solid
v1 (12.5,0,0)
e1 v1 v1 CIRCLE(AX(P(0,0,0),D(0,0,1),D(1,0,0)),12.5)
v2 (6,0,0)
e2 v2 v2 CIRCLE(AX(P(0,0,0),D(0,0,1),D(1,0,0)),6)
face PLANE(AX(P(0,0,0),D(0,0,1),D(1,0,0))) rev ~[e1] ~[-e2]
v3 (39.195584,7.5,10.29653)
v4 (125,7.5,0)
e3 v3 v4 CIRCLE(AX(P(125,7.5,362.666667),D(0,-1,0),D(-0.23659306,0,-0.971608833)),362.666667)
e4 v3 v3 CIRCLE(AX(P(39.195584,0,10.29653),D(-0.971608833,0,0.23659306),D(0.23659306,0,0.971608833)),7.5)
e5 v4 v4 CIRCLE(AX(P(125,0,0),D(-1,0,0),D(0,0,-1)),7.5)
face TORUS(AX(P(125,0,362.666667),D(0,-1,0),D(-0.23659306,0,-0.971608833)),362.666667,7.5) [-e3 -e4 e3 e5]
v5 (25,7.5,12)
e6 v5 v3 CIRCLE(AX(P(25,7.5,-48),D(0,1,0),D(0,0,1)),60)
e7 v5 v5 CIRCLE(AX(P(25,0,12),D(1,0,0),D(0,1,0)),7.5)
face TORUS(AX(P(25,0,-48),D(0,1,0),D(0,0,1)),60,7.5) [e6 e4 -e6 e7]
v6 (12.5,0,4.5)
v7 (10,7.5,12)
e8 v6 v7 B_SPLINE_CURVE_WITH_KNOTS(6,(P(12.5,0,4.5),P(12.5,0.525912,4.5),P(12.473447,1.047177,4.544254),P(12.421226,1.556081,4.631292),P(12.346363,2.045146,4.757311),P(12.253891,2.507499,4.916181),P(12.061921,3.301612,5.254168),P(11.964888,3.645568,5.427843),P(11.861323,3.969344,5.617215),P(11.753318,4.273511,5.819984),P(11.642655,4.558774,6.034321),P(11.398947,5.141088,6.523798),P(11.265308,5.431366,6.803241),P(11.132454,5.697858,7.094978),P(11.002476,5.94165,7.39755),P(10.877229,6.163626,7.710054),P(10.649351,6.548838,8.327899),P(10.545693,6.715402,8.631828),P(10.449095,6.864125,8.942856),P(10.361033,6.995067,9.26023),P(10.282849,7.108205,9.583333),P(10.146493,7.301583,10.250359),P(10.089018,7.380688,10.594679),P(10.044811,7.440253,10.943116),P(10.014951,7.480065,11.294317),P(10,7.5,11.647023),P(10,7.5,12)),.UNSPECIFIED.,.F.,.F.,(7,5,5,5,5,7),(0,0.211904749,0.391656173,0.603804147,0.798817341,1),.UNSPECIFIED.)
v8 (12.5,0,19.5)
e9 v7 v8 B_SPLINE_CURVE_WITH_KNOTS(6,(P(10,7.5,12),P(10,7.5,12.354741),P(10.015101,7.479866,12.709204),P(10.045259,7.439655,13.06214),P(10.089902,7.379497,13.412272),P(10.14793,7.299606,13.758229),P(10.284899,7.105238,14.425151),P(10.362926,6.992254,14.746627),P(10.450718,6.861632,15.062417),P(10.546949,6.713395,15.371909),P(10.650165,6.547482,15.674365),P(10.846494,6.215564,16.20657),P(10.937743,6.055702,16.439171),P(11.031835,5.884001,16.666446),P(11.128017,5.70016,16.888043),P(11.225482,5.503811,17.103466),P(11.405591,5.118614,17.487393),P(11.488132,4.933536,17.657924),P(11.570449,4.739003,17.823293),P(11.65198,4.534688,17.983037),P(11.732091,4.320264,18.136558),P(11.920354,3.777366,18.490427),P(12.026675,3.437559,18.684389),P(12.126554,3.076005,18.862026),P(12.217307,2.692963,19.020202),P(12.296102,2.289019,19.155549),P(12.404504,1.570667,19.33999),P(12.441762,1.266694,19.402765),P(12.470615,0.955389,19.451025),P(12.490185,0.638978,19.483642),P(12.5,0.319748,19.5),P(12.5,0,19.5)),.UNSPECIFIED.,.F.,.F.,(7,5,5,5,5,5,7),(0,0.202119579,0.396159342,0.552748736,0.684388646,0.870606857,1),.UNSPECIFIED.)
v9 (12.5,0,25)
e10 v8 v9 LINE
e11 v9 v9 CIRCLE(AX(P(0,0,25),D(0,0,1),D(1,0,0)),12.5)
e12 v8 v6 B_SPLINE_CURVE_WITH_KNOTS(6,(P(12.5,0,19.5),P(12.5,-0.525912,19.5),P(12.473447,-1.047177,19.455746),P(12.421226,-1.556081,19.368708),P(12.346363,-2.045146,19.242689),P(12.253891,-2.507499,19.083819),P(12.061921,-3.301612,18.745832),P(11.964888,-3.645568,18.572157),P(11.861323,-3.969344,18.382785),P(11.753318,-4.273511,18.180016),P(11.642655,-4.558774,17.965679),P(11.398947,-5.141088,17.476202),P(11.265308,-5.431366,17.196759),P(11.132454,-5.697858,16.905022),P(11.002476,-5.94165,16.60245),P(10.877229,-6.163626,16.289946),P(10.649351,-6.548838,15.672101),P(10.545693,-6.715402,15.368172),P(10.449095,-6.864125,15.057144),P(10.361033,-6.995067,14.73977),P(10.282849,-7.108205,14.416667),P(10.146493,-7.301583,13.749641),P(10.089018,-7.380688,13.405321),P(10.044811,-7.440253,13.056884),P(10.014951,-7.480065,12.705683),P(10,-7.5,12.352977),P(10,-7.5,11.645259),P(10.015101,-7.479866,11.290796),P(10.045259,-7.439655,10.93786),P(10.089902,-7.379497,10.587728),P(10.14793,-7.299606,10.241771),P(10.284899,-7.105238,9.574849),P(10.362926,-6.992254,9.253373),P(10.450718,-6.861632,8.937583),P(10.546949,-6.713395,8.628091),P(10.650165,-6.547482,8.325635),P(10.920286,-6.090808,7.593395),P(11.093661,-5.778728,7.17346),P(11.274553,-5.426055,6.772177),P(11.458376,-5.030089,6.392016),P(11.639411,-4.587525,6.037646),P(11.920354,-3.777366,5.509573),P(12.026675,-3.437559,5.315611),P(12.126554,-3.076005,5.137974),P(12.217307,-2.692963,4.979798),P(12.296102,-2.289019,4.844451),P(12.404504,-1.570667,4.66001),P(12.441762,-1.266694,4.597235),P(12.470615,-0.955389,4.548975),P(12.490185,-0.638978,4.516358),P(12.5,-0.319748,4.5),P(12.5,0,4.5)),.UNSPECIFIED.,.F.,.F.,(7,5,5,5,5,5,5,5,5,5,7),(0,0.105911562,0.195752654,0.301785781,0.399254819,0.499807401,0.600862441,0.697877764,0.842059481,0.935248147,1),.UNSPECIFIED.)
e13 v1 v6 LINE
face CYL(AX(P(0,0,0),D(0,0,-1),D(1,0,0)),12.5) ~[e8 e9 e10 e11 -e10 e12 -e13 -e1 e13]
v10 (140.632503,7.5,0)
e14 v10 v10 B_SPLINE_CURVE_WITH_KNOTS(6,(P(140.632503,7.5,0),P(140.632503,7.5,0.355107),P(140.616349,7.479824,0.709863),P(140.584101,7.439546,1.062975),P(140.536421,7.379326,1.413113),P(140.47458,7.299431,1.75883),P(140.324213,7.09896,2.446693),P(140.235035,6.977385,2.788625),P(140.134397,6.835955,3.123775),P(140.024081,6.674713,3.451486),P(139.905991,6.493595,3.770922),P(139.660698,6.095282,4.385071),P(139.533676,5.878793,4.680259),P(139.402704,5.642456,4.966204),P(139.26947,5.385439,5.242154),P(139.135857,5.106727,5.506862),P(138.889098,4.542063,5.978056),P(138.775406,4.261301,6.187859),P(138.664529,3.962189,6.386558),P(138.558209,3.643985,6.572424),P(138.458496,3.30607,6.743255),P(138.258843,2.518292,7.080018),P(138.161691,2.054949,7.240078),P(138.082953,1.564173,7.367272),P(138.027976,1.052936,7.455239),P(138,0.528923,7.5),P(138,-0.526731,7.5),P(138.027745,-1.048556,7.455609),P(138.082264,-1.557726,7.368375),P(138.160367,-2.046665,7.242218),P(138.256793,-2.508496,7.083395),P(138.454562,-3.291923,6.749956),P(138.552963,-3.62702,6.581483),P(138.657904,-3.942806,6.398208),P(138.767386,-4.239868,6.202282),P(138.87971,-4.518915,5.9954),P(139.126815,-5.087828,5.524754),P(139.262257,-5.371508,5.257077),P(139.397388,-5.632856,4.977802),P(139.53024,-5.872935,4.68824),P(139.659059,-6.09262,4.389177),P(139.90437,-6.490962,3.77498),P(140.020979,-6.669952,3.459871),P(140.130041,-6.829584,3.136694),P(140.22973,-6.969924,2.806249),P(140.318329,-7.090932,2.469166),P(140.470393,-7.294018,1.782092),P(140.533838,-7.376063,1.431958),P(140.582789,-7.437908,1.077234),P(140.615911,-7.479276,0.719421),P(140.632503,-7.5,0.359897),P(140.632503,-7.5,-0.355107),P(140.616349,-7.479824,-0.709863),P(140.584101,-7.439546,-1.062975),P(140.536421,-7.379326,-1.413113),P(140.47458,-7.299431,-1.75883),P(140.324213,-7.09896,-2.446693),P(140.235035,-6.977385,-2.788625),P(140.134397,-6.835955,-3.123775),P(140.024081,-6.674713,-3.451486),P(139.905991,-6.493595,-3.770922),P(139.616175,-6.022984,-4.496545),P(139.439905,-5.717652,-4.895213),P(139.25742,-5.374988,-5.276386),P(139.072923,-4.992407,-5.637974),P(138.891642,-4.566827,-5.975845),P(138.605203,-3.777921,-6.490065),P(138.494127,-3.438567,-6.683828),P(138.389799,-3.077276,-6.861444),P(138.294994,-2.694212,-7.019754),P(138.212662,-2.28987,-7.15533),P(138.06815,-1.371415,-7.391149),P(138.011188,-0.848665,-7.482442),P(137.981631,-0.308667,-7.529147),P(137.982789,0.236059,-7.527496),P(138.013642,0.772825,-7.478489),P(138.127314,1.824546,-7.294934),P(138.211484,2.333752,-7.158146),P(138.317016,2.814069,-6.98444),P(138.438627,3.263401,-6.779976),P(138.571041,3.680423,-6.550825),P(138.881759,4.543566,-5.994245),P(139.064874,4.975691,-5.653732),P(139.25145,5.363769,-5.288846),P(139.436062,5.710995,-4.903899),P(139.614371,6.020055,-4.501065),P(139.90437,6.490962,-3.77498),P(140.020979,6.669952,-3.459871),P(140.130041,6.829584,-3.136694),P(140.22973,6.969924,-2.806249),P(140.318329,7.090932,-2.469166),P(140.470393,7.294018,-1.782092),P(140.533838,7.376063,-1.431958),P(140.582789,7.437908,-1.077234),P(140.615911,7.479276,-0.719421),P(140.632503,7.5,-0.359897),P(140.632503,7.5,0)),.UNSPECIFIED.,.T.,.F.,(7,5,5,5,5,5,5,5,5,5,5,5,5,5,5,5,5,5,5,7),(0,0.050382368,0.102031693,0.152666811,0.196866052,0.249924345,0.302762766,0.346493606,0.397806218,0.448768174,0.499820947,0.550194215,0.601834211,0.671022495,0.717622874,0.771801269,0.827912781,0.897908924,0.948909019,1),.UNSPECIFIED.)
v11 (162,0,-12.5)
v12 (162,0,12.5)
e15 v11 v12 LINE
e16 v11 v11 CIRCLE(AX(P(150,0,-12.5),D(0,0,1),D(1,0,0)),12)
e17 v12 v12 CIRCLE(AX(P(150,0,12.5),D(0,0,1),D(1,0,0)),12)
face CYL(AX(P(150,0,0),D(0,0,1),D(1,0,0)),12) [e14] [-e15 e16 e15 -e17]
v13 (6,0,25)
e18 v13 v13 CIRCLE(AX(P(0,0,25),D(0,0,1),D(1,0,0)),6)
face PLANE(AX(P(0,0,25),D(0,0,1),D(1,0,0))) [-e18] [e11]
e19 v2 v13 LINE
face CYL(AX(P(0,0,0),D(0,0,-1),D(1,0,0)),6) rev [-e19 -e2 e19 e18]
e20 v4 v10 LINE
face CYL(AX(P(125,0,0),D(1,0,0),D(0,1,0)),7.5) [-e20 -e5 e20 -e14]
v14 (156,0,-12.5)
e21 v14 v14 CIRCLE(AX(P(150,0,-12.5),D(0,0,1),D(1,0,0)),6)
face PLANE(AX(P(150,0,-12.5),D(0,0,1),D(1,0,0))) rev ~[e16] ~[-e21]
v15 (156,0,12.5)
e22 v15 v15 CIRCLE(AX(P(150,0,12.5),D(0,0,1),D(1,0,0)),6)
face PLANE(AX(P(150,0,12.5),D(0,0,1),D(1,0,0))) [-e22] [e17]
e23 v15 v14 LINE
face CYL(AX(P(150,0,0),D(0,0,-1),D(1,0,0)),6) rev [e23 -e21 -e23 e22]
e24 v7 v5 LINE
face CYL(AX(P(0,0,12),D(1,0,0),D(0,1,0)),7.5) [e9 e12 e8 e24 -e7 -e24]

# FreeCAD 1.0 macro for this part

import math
import FreeCAD as App
import Part
import Sketcher

V = App.Vector
Q = App.Units.Quantity

doc = App.newDocument("Part")
params = doc.addObject("Spreadsheet::Sheet", "Params")
for row, (alias, value) in enumerate([
    ("sketch1_diameter", "25 mm"),
    ("sketch1_diameter2", "12 mm"),
    ("pad1_length", "25 mm"),
    ("sketch2_diameter", "24 mm"),
    ("sketch2_diameter2", "12 mm"),
    ("pad2_length", "12.5 mm"),
    ("pad2_length2", "12.5 mm"),
    ("sketch3_diameter", "15 mm"),
    ("sketch4_radius", "60 mm"),
    ("sketch4_width", "25 mm"),
    ("sketch5_diameter", "12 mm"),
], start=1):
    params.set(f"A{row}", alias)
    params.set(f"B{row}", "=" + value)
    params.setAlias(f"B{row}", alias)

body = doc.addObject("PartDesign::Body", "Body")

sketch1 = body.newObject("Sketcher::SketchObject", "Sketch")
sketch1.AttachmentSupport = (doc.getObject("XY_Plane"), [""])
sketch1.MapMode = "FlatFace"
sketch1.addGeometry(Part.Circle(V(0, 0, 0), V(0, 0, 1), 12), False)
sketch1.addGeometry(Part.Circle(V(0, 0, 0), V(0, 0, 1), 6), False)
sketch1.addConstraint(Sketcher.Constraint("Coincident", 0, 3, -1, 1))
sketch1.addConstraint(Sketcher.Constraint("Coincident", 1, 3, -1, 1))
sketch1.addConstraint(Sketcher.Constraint("Diameter", 0, Q("25 mm")))
sketch1.addConstraint(Sketcher.Constraint("Diameter", 1, Q("12 mm")))
sketch1.setExpression("Constraints[2]", "Params.sketch1_diameter")
sketch1.setExpression("Constraints[3]", "Params.sketch1_diameter2")
pad1 = body.newObject("PartDesign::Pad", "Pad")
pad1.Profile = sketch1
pad1.setExpression("Length", "Params.pad1_length")
body2 = doc.addObject("PartDesign::Body", "Body001")

sketch2 = body2.newObject("Sketcher::SketchObject", "Sketch001")
sketch2.AttachmentSupport = (doc.getObject("XY_Plane001"), [""])
sketch2.MapMode = "FlatFace"
sketch2.addGeometry(Part.Circle(V(150, 0, 0), V(0, 0, 1), 12), False)
sketch2.addGeometry(Part.Circle(V(150, 0, 0), V(0, 0, 1), 6), False)
sketch2.addConstraint(Sketcher.Constraint("Coincident", 1, 3, 0, 3))
sketch2.addConstraint(Sketcher.Constraint("PointOnObject", 0, 3, -1))
sketch2.addConstraint(Sketcher.Constraint("Diameter", 0, Q("24 mm")))
sketch2.addConstraint(Sketcher.Constraint("Diameter", 1, Q("12 mm")))
sketch2.addConstraint(Sketcher.Constraint("DistanceX", -1, 1, 0, 3, Q("150 mm")))
sketch2.setExpression("Constraints[2]", "Params.sketch2_diameter")
sketch2.setExpression("Constraints[3]", "Params.sketch2_diameter2")
pad2 = body2.newObject("PartDesign::Pad", "Pad001")
pad2.Profile = sketch2
pad2.Type = "TwoLengths"
pad2.setExpression("Length", "Params.pad2_length")
pad2.setExpression("Length2", "Params.pad2_length2")
body.AllowCompound = True
doc.recompute()

boolean = body.newObject("PartDesign::Boolean", "Boolean")
boolean.Type = "Fuse"
boolean.addObjects([body2])

sketch3 = body.newObject("Sketcher::SketchObject", "Sketch002")
sketch3.AttachmentSupport = (doc.getObject("YZ_Plane"), [""])
sketch3.MapMode = "FlatFace"
sketch3.addGeometry(Part.Circle(V(0, 12, 0), V(0, 0, 1), 8), False)
sketch3.addConstraint(Sketcher.Constraint("PointOnObject", 0, 3, -2))
sketch3.addConstraint(Sketcher.Constraint("Diameter", 0, Q("15 mm")))
sketch3.addConstraint(Sketcher.Constraint("DistanceY", -1, 1, 0, 3, Q("12 mm")))
sketch3.setExpression("Constraints[1]", "Params.sketch3_diameter")

sketch4 = body.newObject("Sketcher::SketchObject", "Sketch003")
sketch4.AttachmentSupport = (doc.getObject("XZ_Plane"), [""])
sketch4.MapMode = "FlatFace"
sketch4.addGeometry(Part.LineSegment(V(0, 12, 0), V(25, 12, 0)), False)
sketch4.addGeometry(Part.ArcOfCircle(Part.Circle(V(25, -48, 0), V(0, 0, 1), 60), math.radians(76.31), math.radians(90)), False)
sketch4.addGeometry(Part.ArcOfCircle(Part.Circle(V(125, 363, 0), V(0, 0, 1), 363), math.radians(-103.69), math.radians(-90)), False)
sketch4.addGeometry(Part.LineSegment(V(125, 0, 0), V(150, 0, 0)), False)
sketch4.addConstraint(Sketcher.Constraint("Tangent", 0, 2, 1, 2))
sketch4.addConstraint(Sketcher.Constraint("Tangent", 1, 1, 2, 1))
sketch4.addConstraint(Sketcher.Constraint("Tangent", 2, 2, 3, 1))
sketch4.addConstraint(Sketcher.Constraint("Horizontal", 0))
sketch4.addConstraint(Sketcher.Constraint("Horizontal", 3))
sketch4.addConstraint(Sketcher.Constraint("PointOnObject", 0, 1, -2))
sketch4.addConstraint(Sketcher.Constraint("PointOnObject", 2, 2, -1))
sketch4.addConstraint(Sketcher.Constraint("Equal", 0, 3))
sketch4.addConstraint(Sketcher.Constraint("Radius", 1, Q("60 mm")))
sketch4.addConstraint(Sketcher.Constraint("DistanceX", 0, 1, 0, 2, Q("25 mm")))
sketch4.addConstraint(Sketcher.Constraint("DistanceY", 1, 3, -1, 1, Q("48 mm")))
sketch4.addConstraint(Sketcher.Constraint("DistanceX", -1, 1, 2, 3, Q("125 mm")))
sketch4.setExpression("Constraints[8]", "Params.sketch4_radius")
sketch4.setExpression("Constraints[9]", "Params.sketch4_width")
doc.recompute()

additivepipe = body.newObject("PartDesign::AdditivePipe", "AdditivePipe")
additivepipe.Profile = sketch3
additivepipe.Spine = (sketch4, ["Edge1", "Edge2", "Edge3", "Edge4"])

sketch5 = body.newObject("Sketcher::SketchObject", "Sketch004")
sketch5.AttachmentSupport = (doc.getObject("XY_Plane"), [""])
sketch5.MapMode = "FlatFace"
sketch5.addGeometry(Part.Circle(V(0, 0, 0), V(0, 0, 1), 6), False)
sketch5.addGeometry(Part.Circle(V(150, 0, 0), V(0, 0, 1), 6), False)
sketch5.addConstraint(Sketcher.Constraint("Coincident", 0, 3, -1, 1))
sketch5.addConstraint(Sketcher.Constraint("Equal", 0, 1))
sketch5.addConstraint(Sketcher.Constraint("PointOnObject", 1, 3, -1))
sketch5.addConstraint(Sketcher.Constraint("Diameter", 0, Q("12 mm")))
sketch5.addConstraint(Sketcher.Constraint("DistanceX", -1, 1, 1, 3, Q("150 mm")))
sketch5.setExpression("Constraints[3]", "Params.sketch5_diameter")
pocket1 = body.newObject("PartDesign::Pocket", "Pocket")
pocket1.Profile = sketch5
pocket1.Type = "ThroughAll"
pocket1.Midplane = True

doc.recompute()
